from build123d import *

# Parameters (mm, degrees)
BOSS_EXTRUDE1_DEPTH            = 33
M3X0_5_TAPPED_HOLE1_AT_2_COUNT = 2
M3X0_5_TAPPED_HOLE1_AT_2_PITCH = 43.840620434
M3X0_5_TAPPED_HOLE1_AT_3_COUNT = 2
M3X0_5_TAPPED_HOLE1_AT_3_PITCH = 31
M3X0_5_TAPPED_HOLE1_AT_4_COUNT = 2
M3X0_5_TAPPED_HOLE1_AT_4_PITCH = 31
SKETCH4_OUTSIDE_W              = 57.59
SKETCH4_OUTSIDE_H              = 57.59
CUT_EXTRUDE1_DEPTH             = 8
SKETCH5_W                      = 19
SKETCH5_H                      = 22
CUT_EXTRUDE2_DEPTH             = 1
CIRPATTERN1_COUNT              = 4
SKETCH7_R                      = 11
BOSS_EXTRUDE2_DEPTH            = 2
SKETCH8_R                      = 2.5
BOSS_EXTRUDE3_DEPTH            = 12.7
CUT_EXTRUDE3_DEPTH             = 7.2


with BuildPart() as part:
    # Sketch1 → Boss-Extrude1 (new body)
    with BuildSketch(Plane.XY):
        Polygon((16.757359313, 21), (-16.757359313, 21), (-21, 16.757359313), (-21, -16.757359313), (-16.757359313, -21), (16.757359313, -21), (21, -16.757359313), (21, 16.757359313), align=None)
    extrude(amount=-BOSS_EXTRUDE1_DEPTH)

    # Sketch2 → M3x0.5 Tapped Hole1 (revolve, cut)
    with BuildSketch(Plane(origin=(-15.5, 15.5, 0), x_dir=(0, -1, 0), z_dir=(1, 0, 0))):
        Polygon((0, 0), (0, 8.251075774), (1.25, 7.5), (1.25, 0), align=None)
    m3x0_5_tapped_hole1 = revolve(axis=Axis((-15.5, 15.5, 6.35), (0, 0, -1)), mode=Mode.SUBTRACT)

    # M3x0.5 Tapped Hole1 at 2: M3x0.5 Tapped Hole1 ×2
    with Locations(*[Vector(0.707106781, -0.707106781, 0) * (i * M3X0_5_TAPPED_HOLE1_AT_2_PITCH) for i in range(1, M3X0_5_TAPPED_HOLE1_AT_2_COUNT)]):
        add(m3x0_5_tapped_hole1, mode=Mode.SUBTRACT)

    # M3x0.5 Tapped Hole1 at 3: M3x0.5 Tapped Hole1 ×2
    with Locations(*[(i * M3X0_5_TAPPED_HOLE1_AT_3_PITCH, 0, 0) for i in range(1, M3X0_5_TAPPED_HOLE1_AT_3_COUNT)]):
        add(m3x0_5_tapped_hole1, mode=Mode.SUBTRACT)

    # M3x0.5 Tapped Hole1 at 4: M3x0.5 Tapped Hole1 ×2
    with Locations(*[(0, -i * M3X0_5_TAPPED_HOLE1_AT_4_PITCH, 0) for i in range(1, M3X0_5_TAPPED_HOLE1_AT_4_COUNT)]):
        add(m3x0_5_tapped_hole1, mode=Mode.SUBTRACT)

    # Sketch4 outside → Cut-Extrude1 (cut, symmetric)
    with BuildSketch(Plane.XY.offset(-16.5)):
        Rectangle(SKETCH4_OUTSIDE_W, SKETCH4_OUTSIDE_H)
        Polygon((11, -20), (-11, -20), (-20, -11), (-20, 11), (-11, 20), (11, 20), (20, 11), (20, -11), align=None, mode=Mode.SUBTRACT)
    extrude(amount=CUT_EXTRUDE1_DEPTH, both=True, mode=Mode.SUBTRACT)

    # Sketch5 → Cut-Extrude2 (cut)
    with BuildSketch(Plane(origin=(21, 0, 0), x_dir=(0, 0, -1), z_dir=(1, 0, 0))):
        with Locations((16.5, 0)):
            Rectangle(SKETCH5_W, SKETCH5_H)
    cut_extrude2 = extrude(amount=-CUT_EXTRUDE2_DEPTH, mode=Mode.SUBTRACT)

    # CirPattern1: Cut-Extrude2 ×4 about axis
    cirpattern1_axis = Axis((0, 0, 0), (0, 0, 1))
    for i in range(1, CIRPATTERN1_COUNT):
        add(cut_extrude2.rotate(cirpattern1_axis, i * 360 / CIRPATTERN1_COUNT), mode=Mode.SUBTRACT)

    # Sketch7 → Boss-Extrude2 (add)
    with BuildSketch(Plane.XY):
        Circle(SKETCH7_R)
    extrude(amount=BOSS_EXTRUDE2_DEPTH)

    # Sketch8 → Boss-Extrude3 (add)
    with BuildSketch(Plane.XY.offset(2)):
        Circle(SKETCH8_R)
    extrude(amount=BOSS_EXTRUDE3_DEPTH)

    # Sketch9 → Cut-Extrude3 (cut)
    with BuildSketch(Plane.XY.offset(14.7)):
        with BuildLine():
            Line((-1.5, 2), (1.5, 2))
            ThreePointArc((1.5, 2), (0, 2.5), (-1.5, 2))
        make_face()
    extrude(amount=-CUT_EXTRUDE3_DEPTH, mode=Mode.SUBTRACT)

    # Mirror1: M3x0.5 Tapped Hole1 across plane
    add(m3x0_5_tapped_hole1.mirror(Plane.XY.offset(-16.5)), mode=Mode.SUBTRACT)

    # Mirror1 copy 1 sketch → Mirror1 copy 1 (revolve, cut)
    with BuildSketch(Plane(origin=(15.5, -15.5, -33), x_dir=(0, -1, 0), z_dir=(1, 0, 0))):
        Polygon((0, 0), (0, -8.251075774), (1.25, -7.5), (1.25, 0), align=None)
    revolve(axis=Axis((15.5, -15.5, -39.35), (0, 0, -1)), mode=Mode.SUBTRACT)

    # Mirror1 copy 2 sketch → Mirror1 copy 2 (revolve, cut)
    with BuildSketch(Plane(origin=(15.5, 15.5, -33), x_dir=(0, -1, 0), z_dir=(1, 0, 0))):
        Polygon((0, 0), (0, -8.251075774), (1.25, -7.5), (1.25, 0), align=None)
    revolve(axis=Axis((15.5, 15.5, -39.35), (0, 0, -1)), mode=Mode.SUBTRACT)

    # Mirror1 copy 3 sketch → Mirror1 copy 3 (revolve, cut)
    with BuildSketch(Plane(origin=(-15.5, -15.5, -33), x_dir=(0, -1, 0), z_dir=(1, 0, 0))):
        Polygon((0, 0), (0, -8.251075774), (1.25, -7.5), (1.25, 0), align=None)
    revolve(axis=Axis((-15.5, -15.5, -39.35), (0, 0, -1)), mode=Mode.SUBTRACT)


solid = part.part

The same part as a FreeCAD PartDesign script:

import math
import FreeCAD as App
import Part
import Sketcher
Q = App.Units.Quantity

doc = App.newDocument("Part")
params = doc.addObject("Spreadsheet::Sheet", "Params")
for row, (alias, value) in enumerate([
    ("sketch1_length", "6 mm"),
    ("pad1_length", "33 mm"),
    ("sketch2_height", "7.5 mm"),
    ("sketch2_width", "1.25 mm"),
    ("groove_angle", "360 deg"),
    ("linearpattern_pitch", "43.84062 mm"),
    ("linearpattern2_pitch", "31 mm"),
    ("linearpattern3_pitch", "31 mm"),
    ("sketch3_width", "22 mm"),
    ("sketch3_width2", "57.59 mm"),
    ("pocket1_length", "16 mm"),
    ("sketch4_width", "22 mm"),
    ("sketch4_height", "19 mm"),
    ("pocket2_length", "1 mm"),
    ("sketch5_diameter", "22 mm"),
    ("pad2_length", "2 mm"),
    ("sketch6_diameter", "5 mm"),
    ("pad3_length", "12.7 mm"),
    ("sketch7_radius", "2.5 mm"),
    ("sketch7_width", "3 mm"),
    ("pocket3_length", "7.2 mm"),
    ("sketch8_height", "7.5 mm"),
    ("sketch8_width", "1.25 mm"),
    ("groove2_angle", "360 deg"),
    ("sketch9_height", "7.5 mm"),
    ("sketch9_width", "1.25 mm"),
    ("groove3_angle", "360 deg"),
    ("sketch10_height", "7.5 mm"),
    ("sketch10_width", "1.25 mm"),
    ("groove4_angle", "360 deg"),
], start=1):
    params.set(f"A{row}", alias)
    params.set(f"B{row}", "=" + value)
    params.setAlias(f"B{row}", alias)

body = doc.addObject("PartDesign::Body", "Body")

# Sketch on XY plane
sketch1 = body.newObject("Sketcher::SketchObject", "Sketch")
sketch1.AttachmentSupport = (doc.getObject("XY_Plane"), [""])
sketch1.MapMode = "FlatFace"
sketch1.addGeometry([
    Part.LineSegment(App.Vector(17, 21, 0), App.Vector(-17, 21, 0)),  # 0
    Part.LineSegment(App.Vector(-17, 21, 0), App.Vector(-21, 17, 0)),  # 1
    Part.LineSegment(App.Vector(-21, 17, 0), App.Vector(-21, -17, 0)),  # 2
    Part.LineSegment(App.Vector(-21, -17, 0), App.Vector(-17, -21, 0)),  # 3
    Part.LineSegment(App.Vector(-17, -21, 0), App.Vector(17, -21, 0)),  # 4
    Part.LineSegment(App.Vector(17, -21, 0), App.Vector(21, -17, 0)),  # 5
    Part.LineSegment(App.Vector(21, -17, 0), App.Vector(21, 17, 0)),  # 6
    Part.LineSegment(App.Vector(21, 17, 0), App.Vector(17, 21, 0)),  # 7
], False)
sketch1.addConstraint([
    Sketcher.Constraint("Coincident", 0, 2, 1, 1),
    Sketcher.Constraint("Coincident", 1, 2, 2, 1),
    Sketcher.Constraint("Coincident", 2, 2, 3, 1),
    Sketcher.Constraint("Coincident", 3, 2, 4, 1),
    Sketcher.Constraint("Coincident", 4, 2, 5, 1),
    Sketcher.Constraint("Coincident", 5, 2, 6, 1),
    Sketcher.Constraint("Coincident", 6, 2, 7, 1),
    Sketcher.Constraint("Coincident", 7, 2, 0, 1),
    Sketcher.Constraint("Horizontal", 0),
    Sketcher.Constraint("Vertical", 2),
    Sketcher.Constraint("Horizontal", 4),
    Sketcher.Constraint("Vertical", 6),
    Sketcher.Constraint("Symmetric", 0, 2, 4, 2, -1, 1),
    Sketcher.Constraint("Symmetric", 1, 2, 5, 2, -1, 1),
    Sketcher.Constraint("Perpendicular", 1, 3),
    Sketcher.Constraint("Perpendicular", 5, 7),
    Sketcher.Constraint("Horizontal", 2, 2, 5, 2),
    Sketcher.Constraint("Horizontal", 1, 2, 6, 2),
    Sketcher.Constraint("Vertical", 0, 2, 3, 2),
    Sketcher.Constraint("Equal", 4, 2),
    Sketcher.Constraint("Distance", 1, Q("6 mm")),
    Sketcher.Constraint("DistanceY", -1, 1, 0, 2, Q("21 mm")),
])
sketch1.setExpression("Constraints[20]", "Params.sketch1_length")
pad1 = body.newObject("PartDesign::Pad", "Pad")
pad1.Profile = sketch1
pad1.setExpression("Length", "Params.pad1_length")
pad1.Reversed = True

# Sketch on YZ plane
sketch2 = body.newObject("Sketcher::SketchObject", "Sketch001")
sketch2.AttachmentSupport = (doc.getObject("YZ_Plane"), [""])
sketch2.MapMode = "FlatFace"
sketch2.AttachmentOffset = App.Placement(App.Vector(0, 0, -15.5), App.Rotation())
sketch2.addGeometry([
    Part.LineSegment(App.Vector(15.5, -8.3, 0), App.Vector(15.5, 0, 0)),
    Part.LineSegment(App.Vector(15.5, 0, 0), App.Vector(14.2, 0, 0)),
    Part.LineSegment(App.Vector(14.2, 0, 0), App.Vector(14.2, -7.5, 0)),
    Part.LineSegment(App.Vector(14.2, -7.5, 0), App.Vector(15.5, -8.3, 0)),
], False)
sketch2.addGeometry(Part.LineSegment(App.Vector(15.5, 0, 0), App.Vector(15.5, -8.3, 0)), True)  # axis
sketch2.addConstraint([
    Sketcher.Constraint("Coincident", 0, 2, 1, 1),
    Sketcher.Constraint("Coincident", 1, 2, 2, 1),
    Sketcher.Constraint("Coincident", 2, 2, 3, 1),
    Sketcher.Constraint("Coincident", 3, 2, 0, 1),
    Sketcher.Constraint("Vertical", 0),
    Sketcher.Constraint("Horizontal", 1),
    Sketcher.Constraint("Vertical", 2),
    Sketcher.Constraint("Vertical", 4),
    Sketcher.Constraint("Coincident", 4, 1, 0, 2),
    Sketcher.Constraint("PointOnObject", 0, 2, -1),
    Sketcher.Constraint("Equal", 0, 4),
    Sketcher.Constraint("Angle", 3, Q("-31 deg")),
    Sketcher.Constraint("DistanceY", 2, 2, 2, 1, Q("7.5 mm")),
    Sketcher.Constraint("DistanceX", 1, 2, 1, 1, Q("1.25 mm")),
    Sketcher.Constraint("DistanceX", -1, 1, 0, 2, Q("15.5 mm")),
])
sketch2.setExpression("Constraints[12]", "Params.sketch2_height")
sketch2.setExpression("Constraints[13]", "Params.sketch2_width")
groove = body.newObject("PartDesign::Groove", "Groove")
groove.Profile = sketch2
groove.ReferenceAxis = (sketch2, ["Axis0"])
groove.setExpression("Angle", "Params.groove_angle")
doc.recompute()

datumline = body.newObject("PartDesign::Line", "DatumLine")
datumline.Placement = App.Placement(App.Vector(0, 0, 0), App.Rotation(App.Vector(0, 0, 1), App.Vector(0.707106781, -0.707106781, 0)))
linearpattern = body.newObject("PartDesign::LinearPattern", "LinearPattern")
linearpattern.Originals = [groove]
linearpattern.Direction = (datumline, [""])
linearpattern.Mode = "offset"
linearpattern.setExpression("Offset", "Params.linearpattern_pitch")
linearpattern.Occurrences = 2
body.Tip = linearpattern
doc.recompute()

linearpattern2 = body.newObject("PartDesign::LinearPattern", "LinearPattern001")
linearpattern2.Originals = [groove]
linearpattern2.Direction = (doc.getObject("X_Axis"), [""])
linearpattern2.Mode = "offset"
linearpattern2.setExpression("Offset", "Params.linearpattern2_pitch")
linearpattern2.Occurrences = 2
body.Tip = linearpattern2
doc.recompute()

linearpattern3 = body.newObject("PartDesign::LinearPattern", "LinearPattern002")
linearpattern3.Originals = [groove]
linearpattern3.Direction = (doc.getObject("Y_Axis"), [""])
linearpattern3.Mode = "offset"
linearpattern3.setExpression("Offset", "Params.linearpattern3_pitch")
linearpattern3.Occurrences = 2
linearpattern3.Reversed = True
body.Tip = linearpattern3

# Sketch on XY plane
sketch3 = body.newObject("Sketcher::SketchObject", "Sketch002")
sketch3.AttachmentSupport = (doc.getObject("XY_Plane"), [""])
sketch3.MapMode = "FlatFace"
sketch3.AttachmentOffset = App.Placement(App.Vector(0, 0, -16.5), App.Rotation())
sketch3.addGeometry([
    Part.LineSegment(App.Vector(-29, 29, 0), App.Vector(-29, -29, 0)),  # 0
    Part.LineSegment(App.Vector(-29, -29, 0), App.Vector(29, -29, 0)),  # 1
    Part.LineSegment(App.Vector(29, -29, 0), App.Vector(29, 29, 0)),  # 2
    Part.LineSegment(App.Vector(29, 29, 0), App.Vector(-29, 29, 0)),  # 3
    Part.LineSegment(App.Vector(20, -11, 0), App.Vector(11, -20, 0)),  # 4
    Part.LineSegment(App.Vector(11, -20, 0), App.Vector(-11, -20, 0)),  # 5
    Part.LineSegment(App.Vector(-11, -20, 0), App.Vector(-20, -11, 0)),  # 6
    Part.LineSegment(App.Vector(-20, -11, 0), App.Vector(-20, 11, 0)),  # 7
    Part.LineSegment(App.Vector(-20, 11, 0), App.Vector(-11, 20, 0)),  # 8
    Part.LineSegment(App.Vector(-11, 20, 0), App.Vector(11, 20, 0)),  # 9
    Part.LineSegment(App.Vector(11, 20, 0), App.Vector(20, 11, 0)),  # 10
    Part.LineSegment(App.Vector(20, 11, 0), App.Vector(20, -11, 0)),  # 11
], False)
sketch3.addConstraint([
    Sketcher.Constraint("Coincident", 0, 2, 1, 1),
    Sketcher.Constraint("Coincident", 1, 2, 2, 1),
    Sketcher.Constraint("Coincident", 2, 2, 3, 1),
    Sketcher.Constraint("Coincident", 3, 2, 0, 1),
    Sketcher.Constraint("Coincident", 4, 2, 5, 1),
    Sketcher.Constraint("Coincident", 5, 2, 6, 1),
    Sketcher.Constraint("Coincident", 6, 2, 7, 1),
    Sketcher.Constraint("Coincident", 7, 2, 8, 1),
    Sketcher.Constraint("Coincident", 8, 2, 9, 1),
    Sketcher.Constraint("Coincident", 9, 2, 10, 1),
    Sketcher.Constraint("Coincident", 10, 2, 11, 1),
    Sketcher.Constraint("Coincident", 11, 2, 4, 1),
    Sketcher.Constraint("Vertical", 0),
    Sketcher.Constraint("Horizontal", 1),
    Sketcher.Constraint("Vertical", 2),
    Sketcher.Constraint("Horizontal", 3),
    Sketcher.Constraint("Horizontal", 5),
    Sketcher.Constraint("Vertical", 7),
    Sketcher.Constraint("Horizontal", 9),
    Sketcher.Constraint("Vertical", 11),
    Sketcher.Constraint("Symmetric", 0, 2, 2, 2, -1, 1),
    Sketcher.Constraint("Symmetric", 4, 2, 8, 2, -1, 1),
    Sketcher.Constraint("Symmetric", 6, 2, 10, 2, -1, 1),
    Sketcher.Constraint("Perpendicular", 4, 6),
    Sketcher.Constraint("Perpendicular", 6, 8),
    Sketcher.Constraint("Perpendicular", 8, 10),
    Sketcher.Constraint("Horizontal", 7, 2, 10, 2),
    Sketcher.Constraint("Vertical", 5, 2, 8, 2),
    Sketcher.Constraint("Equal", 3, 0),
    Sketcher.Constraint("Equal", 9, 7),
    Sketcher.Constraint("DistanceX", 5, 2, 5, 1, Q("22 mm")),
    Sketcher.Constraint("DistanceY", 4, 2, -1, 1, Q("20 mm")),
    Sketcher.Constraint("DistanceX", 1, 1, 1, 2, Q("57.59 mm")),
])
sketch3.setExpression("Constraints[30]", "Params.sketch3_width")
sketch3.setExpression("Constraints[32]", "Params.sketch3_width2")
pocket1 = body.newObject("PartDesign::Pocket", "Pocket")
pocket1.Profile = sketch3
pocket1.setExpression("Length", "Params.pocket1_length")
pocket1.Midplane = True

# Sketch on YZ plane
sketch4 = body.newObject("Sketcher::SketchObject", "Sketch003")
sketch4.AttachmentSupport = (doc.getObject("YZ_Plane"), [""])
sketch4.MapMode = "FlatFace"
sketch4.AttachmentOffset = App.Placement(App.Vector(0, 0, 21), App.Rotation())
sketch4.addGeometry([
    Part.LineSegment(App.Vector(11, -7, 0), App.Vector(-11, -7, 0)),
    Part.LineSegment(App.Vector(-11, -7, 0), App.Vector(-11, -26, 0)),
    Part.LineSegment(App.Vector(-11, -26, 0), App.Vector(11, -26, 0)),
    Part.LineSegment(App.Vector(11, -26, 0), App.Vector(11, -7, 0)),
], False)
sketch4.addConstraint([
    Sketcher.Constraint("Coincident", 0, 2, 1, 1),
    Sketcher.Constraint("Coincident", 1, 2, 2, 1),
    Sketcher.Constraint("Coincident", 2, 2, 3, 1),
    Sketcher.Constraint("Coincident", 3, 2, 0, 1),
    Sketcher.Constraint("Horizontal", 0),
    Sketcher.Constraint("Vertical", 1),
    Sketcher.Constraint("Horizontal", 2),
    Sketcher.Constraint("Vertical", 3),
    Sketcher.Constraint("DistanceX", 0, 2, 0, 1, Q("22 mm")),
    Sketcher.Constraint("DistanceY", 1, 2, 1, 1, Q("19 mm")),
    Sketcher.Constraint("DistanceX", 0, 2, -1, 1, Q("11 mm")),
    Sketcher.Constraint("DistanceY", 0, 2, -1, 1, Q("7 mm")),
])
sketch4.setExpression("Constraints[8]", "Params.sketch4_width")
sketch4.setExpression("Constraints[9]", "Params.sketch4_height")
pocket2 = body.newObject("PartDesign::Pocket", "Pocket001")
pocket2.Profile = sketch4
pocket2.setExpression("Length", "Params.pocket2_length")
doc.recompute()

polarpattern = body.newObject("PartDesign::PolarPattern", "PolarPattern")
polarpattern.Originals = [pocket2]
polarpattern.Axis = (doc.getObject("Z_Axis"), [""])
polarpattern.Angle = 360
polarpattern.Occurrences = 4
body.Tip = polarpattern

# Sketch on XY plane
sketch5 = body.newObject("Sketcher::SketchObject", "Sketch004")
sketch5.AttachmentSupport = (doc.getObject("XY_Plane"), [""])
sketch5.MapMode = "FlatFace"
sketch5.addGeometry(Part.Circle(App.Vector(0, 0, 0), App.Vector(0, 0, 1), 11), False)
sketch5.addConstraint([
    Sketcher.Constraint("Coincident", 0, 3, -1, 1),
    Sketcher.Constraint("Diameter", 0, Q("22 mm")),
])
sketch5.setExpression("Constraints[1]", "Params.sketch5_diameter")
pad2 = body.newObject("PartDesign::Pad", "Pad001")
pad2.Profile = sketch5
pad2.setExpression("Length", "Params.pad2_length")

# Sketch on XY plane
sketch6 = body.newObject("Sketcher::SketchObject", "Sketch005")
sketch6.AttachmentSupport = (doc.getObject("XY_Plane"), [""])
sketch6.MapMode = "FlatFace"
sketch6.AttachmentOffset = App.Placement(App.Vector(0, 0, 2), App.Rotation())
sketch6.addGeometry(Part.Circle(App.Vector(0, 0, 0), App.Vector(0, 0, 1), 2.5), False)
sketch6.addConstraint([
    Sketcher.Constraint("Coincident", 0, 3, -1, 1),
    Sketcher.Constraint("Diameter", 0, Q("5 mm")),
])
sketch6.setExpression("Constraints[1]", "Params.sketch6_diameter")
pad3 = body.newObject("PartDesign::Pad", "Pad002")
pad3.Profile = sketch6
pad3.setExpression("Length", "Params.pad3_length")

# Sketch on XY plane
sketch7 = body.newObject("Sketcher::SketchObject", "Sketch006")
sketch7.AttachmentSupport = (doc.getObject("XY_Plane"), [""])
sketch7.MapMode = "FlatFace"
sketch7.AttachmentOffset = App.Placement(App.Vector(0, 0, 14.7), App.Rotation())
sketch7.addGeometry([
    Part.LineSegment(App.Vector(-1.5, 2, 0), App.Vector(1.5, 2, 0)),
    Part.ArcOfCircle(Part.Circle(App.Vector(0, 0, 0), App.Vector(0, 0, 1), 2.5), math.radians(53), math.radians(127)),
], False)
sketch7.addConstraint([
    Sketcher.Constraint("Coincident", 0, 1, 1, 2),
    Sketcher.Constraint("Coincident", 1, 1, 0, 2),
    Sketcher.Constraint("Horizontal", 0),
    Sketcher.Constraint("Coincident", 1, 3, -1, 1),
    Sketcher.Constraint("Radius", 1, Q("2.5 mm")),
    Sketcher.Constraint("DistanceX", 0, 1, 0, 2, Q("3 mm")),
])
sketch7.setExpression("Constraints[4]", "Params.sketch7_radius")
sketch7.setExpression("Constraints[5]", "Params.sketch7_width")
pocket3 = body.newObject("PartDesign::Pocket", "Pocket002")
pocket3.Profile = sketch7
pocket3.setExpression("Length", "Params.pocket3_length")
doc.recompute()

datumplane = body.newObject("PartDesign::Plane", "DatumPlane")
datumplane.AttachmentSupport = (doc.getObject("XY_Plane"), [""])
datumplane.MapMode = "FlatFace"
datumplane.AttachmentOffset = App.Placement(App.Vector(0, 0, -16.5), App.Rotation())
mirrored = body.newObject("PartDesign::Mirrored", "Mirrored")
mirrored.Originals = [groove]
mirrored.MirrorPlane = (datumplane, [""])
body.Tip = mirrored

# Sketch on YZ plane
sketch8 = body.newObject("Sketcher::SketchObject", "Sketch007")
sketch8.AttachmentSupport = (doc.getObject("YZ_Plane"), [""])
sketch8.MapMode = "FlatFace"
sketch8.AttachmentOffset = App.Placement(App.Vector(0, 0, 15.5), App.Rotation())
sketch8.addGeometry([
    Part.LineSegment(App.Vector(-15.5, -33, 0), App.Vector(-15.5, -24.7, 0)),
    Part.LineSegment(App.Vector(-15.5, -24.7, 0), App.Vector(-16.8, -25.5, 0)),
    Part.LineSegment(App.Vector(-16.8, -25.5, 0), App.Vector(-16.8, -33, 0)),
    Part.LineSegment(App.Vector(-16.8, -33, 0), App.Vector(-15.5, -33, 0)),
], False)
sketch8.addGeometry(Part.LineSegment(App.Vector(-15.5, -24.7, 0), App.Vector(-15.5, -33, 0)), True)  # axis
sketch8.addConstraint([
    Sketcher.Constraint("Coincident", 0, 2, 1, 1),
    Sketcher.Constraint("Coincident", 1, 2, 2, 1),
    Sketcher.Constraint("Coincident", 2, 2, 3, 1),
    Sketcher.Constraint("Coincident", 3, 2, 0, 1),
    Sketcher.Constraint("Vertical", 0),
    Sketcher.Constraint("Vertical", 2),
    Sketcher.Constraint("Horizontal", 3),
    Sketcher.Constraint("Vertical", 4),
    Sketcher.Constraint("Coincident", 4, 1, 0, 2),
    Sketcher.Constraint("Horizontal", 2, 2, 4, 2),
    Sketcher.Constraint("Angle", 1, Q("-149 deg")),
    Sketcher.Constraint("DistanceY", 2, 2, 2, 1, Q("7.5 mm")),
    Sketcher.Constraint("DistanceY", 2, 2, -1, 1, Q("33 mm")),
    Sketcher.Constraint("DistanceX", 3, 1, 3, 2, Q("1.25 mm")),
    Sketcher.Constraint("DistanceX", 0, 2, -1, 1, Q("15.5 mm")),
])
sketch8.setExpression("Constraints[11]", "Params.sketch8_height")
sketch8.setExpression("Constraints[13]", "Params.sketch8_width")
groove2 = body.newObject("PartDesign::Groove", "Groove001")
groove2.Profile = sketch8
groove2.ReferenceAxis = (sketch8, ["Axis0"])
groove2.setExpression("Angle", "Params.groove2_angle")

# Sketch on YZ plane
sketch9 = body.newObject("Sketcher::SketchObject", "Sketch008")
sketch9.AttachmentSupport = (doc.getObject("YZ_Plane"), [""])
sketch9.MapMode = "FlatFace"
sketch9.AttachmentOffset = App.Placement(App.Vector(0, 0, 15.5), App.Rotation())
sketch9.addGeometry([
    Part.LineSegment(App.Vector(15.5, -33, 0), App.Vector(15.5, -24.7, 0)),
    Part.LineSegment(App.Vector(15.5, -24.7, 0), App.Vector(14.2, -25.5, 0)),
    Part.LineSegment(App.Vector(14.2, -25.5, 0), App.Vector(14.2, -33, 0)),
    Part.LineSegment(App.Vector(14.2, -33, 0), App.Vector(15.5, -33, 0)),
], False)
sketch9.addGeometry(Part.LineSegment(App.Vector(15.5, -24.7, 0), App.Vector(15.5, -33, 0)), True)  # axis
sketch9.addConstraint([
    Sketcher.Constraint("Coincident", 0, 2, 1, 1),
    Sketcher.Constraint("Coincident", 1, 2, 2, 1),
    Sketcher.Constraint("Coincident", 2, 2, 3, 1),
    Sketcher.Constraint("Coincident", 3, 2, 0, 1),
    Sketcher.Constraint("Vertical", 0),
    Sketcher.Constraint("Vertical", 2),
    Sketcher.Constraint("Horizontal", 3),
    Sketcher.Constraint("Vertical", 4),
    Sketcher.Constraint("Coincident", 4, 1, 0, 2),
    Sketcher.Constraint("Horizontal", 2, 2, 4, 2),
    Sketcher.Constraint("Angle", 1, Q("-149 deg")),
    Sketcher.Constraint("DistanceY", 2, 2, 2, 1, Q("7.5 mm")),
    Sketcher.Constraint("DistanceY", 2, 2, -1, 1, Q("33 mm")),
    Sketcher.Constraint("DistanceX", 3, 1, 3, 2, Q("1.25 mm")),
    Sketcher.Constraint("DistanceX", -1, 1, 0, 2, Q("15.5 mm")),
])
sketch9.setExpression("Constraints[11]", "Params.sketch9_height")
sketch9.setExpression("Constraints[13]", "Params.sketch9_width")
groove3 = body.newObject("PartDesign::Groove", "Groove002")
groove3.Profile = sketch9
groove3.ReferenceAxis = (sketch9, ["Axis0"])
groove3.setExpression("Angle", "Params.groove3_angle")

# Sketch on YZ plane
sketch10 = body.newObject("Sketcher::SketchObject", "Sketch009")
sketch10.AttachmentSupport = (doc.getObject("YZ_Plane"), [""])
sketch10.MapMode = "FlatFace"
sketch10.AttachmentOffset = App.Placement(App.Vector(0, 0, -15.5), App.Rotation())
sketch10.addGeometry([
    Part.LineSegment(App.Vector(-15.5, -33, 0), App.Vector(-15.5, -24.7, 0)),
    Part.LineSegment(App.Vector(-15.5, -24.7, 0), App.Vector(-16.8, -25.5, 0)),
    Part.LineSegment(App.Vector(-16.8, -25.5, 0), App.Vector(-16.8, -33, 0)),
    Part.LineSegment(App.Vector(-16.8, -33, 0), App.Vector(-15.5, -33, 0)),
], False)
sketch10.addGeometry(Part.LineSegment(App.Vector(-15.5, -24.7, 0), App.Vector(-15.5, -33, 0)), True)  # axis
sketch10.addConstraint([
    Sketcher.Constraint("Coincident", 0, 2, 1, 1),
    Sketcher.Constraint("Coincident", 1, 2, 2, 1),
    Sketcher.Constraint("Coincident", 2, 2, 3, 1),
    Sketcher.Constraint("Coincident", 3, 2, 0, 1),
    Sketcher.Constraint("Vertical", 0),
    Sketcher.Constraint("Vertical", 2),
    Sketcher.Constraint("Horizontal", 3),
    Sketcher.Constraint("Vertical", 4),
    Sketcher.Constraint("Coincident", 4, 1, 0, 2),
    Sketcher.Constraint("Horizontal", 2, 2, 4, 2),
    Sketcher.Constraint("Angle", 1, Q("-149 deg")),
    Sketcher.Constraint("DistanceY", 2, 2, 2, 1, Q("7.5 mm")),
    Sketcher.Constraint("DistanceY", 2, 2, -1, 1, Q("33 mm")),
    Sketcher.Constraint("DistanceX", 3, 1, 3, 2, Q("1.25 mm")),
    Sketcher.Constraint("DistanceX", 0, 2, -1, 1, Q("15.5 mm")),
])
sketch10.setExpression("Constraints[11]", "Params.sketch10_height")
sketch10.setExpression("Constraints[13]", "Params.sketch10_width")
groove4 = body.newObject("PartDesign::Groove", "Groove003")
groove4.Profile = sketch10
groove4.ReferenceAxis = (sketch10, ["Axis0"])
groove4.setExpression("Angle", "Params.groove4_angle")

doc.recompute()
